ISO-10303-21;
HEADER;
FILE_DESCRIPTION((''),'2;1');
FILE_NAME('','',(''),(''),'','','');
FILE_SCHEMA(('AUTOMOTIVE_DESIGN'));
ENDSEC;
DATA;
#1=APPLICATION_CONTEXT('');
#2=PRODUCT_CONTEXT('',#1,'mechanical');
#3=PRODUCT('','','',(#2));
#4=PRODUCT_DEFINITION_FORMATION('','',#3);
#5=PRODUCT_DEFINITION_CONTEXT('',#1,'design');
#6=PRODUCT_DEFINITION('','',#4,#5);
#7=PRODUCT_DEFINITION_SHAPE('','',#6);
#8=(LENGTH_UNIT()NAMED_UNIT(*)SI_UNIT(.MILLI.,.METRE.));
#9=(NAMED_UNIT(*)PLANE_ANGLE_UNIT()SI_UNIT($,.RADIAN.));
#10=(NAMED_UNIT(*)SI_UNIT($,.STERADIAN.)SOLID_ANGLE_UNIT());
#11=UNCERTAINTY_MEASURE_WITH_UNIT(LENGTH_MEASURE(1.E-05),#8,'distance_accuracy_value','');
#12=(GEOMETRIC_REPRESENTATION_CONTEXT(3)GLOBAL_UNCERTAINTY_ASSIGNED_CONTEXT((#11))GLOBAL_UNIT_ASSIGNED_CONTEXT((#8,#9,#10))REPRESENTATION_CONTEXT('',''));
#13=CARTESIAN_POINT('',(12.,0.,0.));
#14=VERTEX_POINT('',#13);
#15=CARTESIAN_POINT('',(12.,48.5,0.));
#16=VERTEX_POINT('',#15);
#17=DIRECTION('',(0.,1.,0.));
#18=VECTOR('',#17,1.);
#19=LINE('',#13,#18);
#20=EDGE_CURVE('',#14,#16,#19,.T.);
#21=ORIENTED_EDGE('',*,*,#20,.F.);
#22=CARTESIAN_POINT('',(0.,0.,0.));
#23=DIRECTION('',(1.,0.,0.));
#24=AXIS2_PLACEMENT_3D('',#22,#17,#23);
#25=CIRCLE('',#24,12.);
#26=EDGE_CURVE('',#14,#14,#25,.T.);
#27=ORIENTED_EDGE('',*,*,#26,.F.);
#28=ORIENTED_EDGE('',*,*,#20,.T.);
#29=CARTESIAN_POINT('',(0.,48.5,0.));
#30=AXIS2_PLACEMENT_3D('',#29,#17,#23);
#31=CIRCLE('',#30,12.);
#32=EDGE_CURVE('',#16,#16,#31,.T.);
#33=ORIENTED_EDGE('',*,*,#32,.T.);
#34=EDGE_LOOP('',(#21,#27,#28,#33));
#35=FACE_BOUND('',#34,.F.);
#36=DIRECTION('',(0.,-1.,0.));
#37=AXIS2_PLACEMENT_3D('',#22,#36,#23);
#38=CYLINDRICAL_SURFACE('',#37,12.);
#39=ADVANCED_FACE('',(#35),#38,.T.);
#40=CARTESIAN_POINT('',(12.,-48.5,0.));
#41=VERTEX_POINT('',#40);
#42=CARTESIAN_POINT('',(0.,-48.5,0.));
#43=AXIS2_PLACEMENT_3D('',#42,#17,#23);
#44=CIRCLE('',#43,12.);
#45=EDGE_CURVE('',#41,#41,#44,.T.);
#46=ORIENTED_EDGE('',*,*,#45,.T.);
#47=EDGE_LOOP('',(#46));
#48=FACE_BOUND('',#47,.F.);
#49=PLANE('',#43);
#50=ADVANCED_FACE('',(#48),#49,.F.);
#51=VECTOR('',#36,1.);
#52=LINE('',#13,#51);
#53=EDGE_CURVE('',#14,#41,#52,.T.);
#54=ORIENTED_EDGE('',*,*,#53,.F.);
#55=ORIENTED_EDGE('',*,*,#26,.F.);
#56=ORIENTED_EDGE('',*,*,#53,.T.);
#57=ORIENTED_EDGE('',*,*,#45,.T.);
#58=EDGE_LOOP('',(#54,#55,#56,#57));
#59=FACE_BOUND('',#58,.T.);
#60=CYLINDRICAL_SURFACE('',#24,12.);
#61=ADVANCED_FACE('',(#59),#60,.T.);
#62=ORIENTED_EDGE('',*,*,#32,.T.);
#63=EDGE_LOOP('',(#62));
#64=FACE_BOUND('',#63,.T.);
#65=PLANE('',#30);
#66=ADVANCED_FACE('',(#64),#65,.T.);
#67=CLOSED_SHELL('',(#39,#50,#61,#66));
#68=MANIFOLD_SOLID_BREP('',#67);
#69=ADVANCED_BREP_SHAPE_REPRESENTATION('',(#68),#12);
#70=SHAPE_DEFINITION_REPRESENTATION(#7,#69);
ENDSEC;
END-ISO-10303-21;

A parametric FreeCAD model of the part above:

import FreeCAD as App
import Part
import Sketcher
from FreeCAD import Vector
Q = App.Units.Quantity

doc = App.newDocument("Part")
body = doc.addObject("PartDesign::Body", "Body")

# Sketch on XZ plane
sketch1 = body.newObject("Sketcher::SketchObject", "Sketch")
sketch1.AttachmentSupport = (doc.getObject("XZ_Plane"), [""])
sketch1.MapMode = "FlatFace"
sketch1.addGeometry(Part.Circle(Vector(0, 0, 0), Vector(0, 0, 1), 12), False)
sketch1.addConstraint([
    Sketcher.Constraint("Coincident", 0, 3, -1, 1),
    Sketcher.Constraint("Diameter", 0, Q("24 mm")),
])
pad1 = body.newObject("PartDesign::Pad", "Pad")
pad1.Profile = sketch1
pad1.Length = 97
pad1.Midplane = True

doc.recompute()
